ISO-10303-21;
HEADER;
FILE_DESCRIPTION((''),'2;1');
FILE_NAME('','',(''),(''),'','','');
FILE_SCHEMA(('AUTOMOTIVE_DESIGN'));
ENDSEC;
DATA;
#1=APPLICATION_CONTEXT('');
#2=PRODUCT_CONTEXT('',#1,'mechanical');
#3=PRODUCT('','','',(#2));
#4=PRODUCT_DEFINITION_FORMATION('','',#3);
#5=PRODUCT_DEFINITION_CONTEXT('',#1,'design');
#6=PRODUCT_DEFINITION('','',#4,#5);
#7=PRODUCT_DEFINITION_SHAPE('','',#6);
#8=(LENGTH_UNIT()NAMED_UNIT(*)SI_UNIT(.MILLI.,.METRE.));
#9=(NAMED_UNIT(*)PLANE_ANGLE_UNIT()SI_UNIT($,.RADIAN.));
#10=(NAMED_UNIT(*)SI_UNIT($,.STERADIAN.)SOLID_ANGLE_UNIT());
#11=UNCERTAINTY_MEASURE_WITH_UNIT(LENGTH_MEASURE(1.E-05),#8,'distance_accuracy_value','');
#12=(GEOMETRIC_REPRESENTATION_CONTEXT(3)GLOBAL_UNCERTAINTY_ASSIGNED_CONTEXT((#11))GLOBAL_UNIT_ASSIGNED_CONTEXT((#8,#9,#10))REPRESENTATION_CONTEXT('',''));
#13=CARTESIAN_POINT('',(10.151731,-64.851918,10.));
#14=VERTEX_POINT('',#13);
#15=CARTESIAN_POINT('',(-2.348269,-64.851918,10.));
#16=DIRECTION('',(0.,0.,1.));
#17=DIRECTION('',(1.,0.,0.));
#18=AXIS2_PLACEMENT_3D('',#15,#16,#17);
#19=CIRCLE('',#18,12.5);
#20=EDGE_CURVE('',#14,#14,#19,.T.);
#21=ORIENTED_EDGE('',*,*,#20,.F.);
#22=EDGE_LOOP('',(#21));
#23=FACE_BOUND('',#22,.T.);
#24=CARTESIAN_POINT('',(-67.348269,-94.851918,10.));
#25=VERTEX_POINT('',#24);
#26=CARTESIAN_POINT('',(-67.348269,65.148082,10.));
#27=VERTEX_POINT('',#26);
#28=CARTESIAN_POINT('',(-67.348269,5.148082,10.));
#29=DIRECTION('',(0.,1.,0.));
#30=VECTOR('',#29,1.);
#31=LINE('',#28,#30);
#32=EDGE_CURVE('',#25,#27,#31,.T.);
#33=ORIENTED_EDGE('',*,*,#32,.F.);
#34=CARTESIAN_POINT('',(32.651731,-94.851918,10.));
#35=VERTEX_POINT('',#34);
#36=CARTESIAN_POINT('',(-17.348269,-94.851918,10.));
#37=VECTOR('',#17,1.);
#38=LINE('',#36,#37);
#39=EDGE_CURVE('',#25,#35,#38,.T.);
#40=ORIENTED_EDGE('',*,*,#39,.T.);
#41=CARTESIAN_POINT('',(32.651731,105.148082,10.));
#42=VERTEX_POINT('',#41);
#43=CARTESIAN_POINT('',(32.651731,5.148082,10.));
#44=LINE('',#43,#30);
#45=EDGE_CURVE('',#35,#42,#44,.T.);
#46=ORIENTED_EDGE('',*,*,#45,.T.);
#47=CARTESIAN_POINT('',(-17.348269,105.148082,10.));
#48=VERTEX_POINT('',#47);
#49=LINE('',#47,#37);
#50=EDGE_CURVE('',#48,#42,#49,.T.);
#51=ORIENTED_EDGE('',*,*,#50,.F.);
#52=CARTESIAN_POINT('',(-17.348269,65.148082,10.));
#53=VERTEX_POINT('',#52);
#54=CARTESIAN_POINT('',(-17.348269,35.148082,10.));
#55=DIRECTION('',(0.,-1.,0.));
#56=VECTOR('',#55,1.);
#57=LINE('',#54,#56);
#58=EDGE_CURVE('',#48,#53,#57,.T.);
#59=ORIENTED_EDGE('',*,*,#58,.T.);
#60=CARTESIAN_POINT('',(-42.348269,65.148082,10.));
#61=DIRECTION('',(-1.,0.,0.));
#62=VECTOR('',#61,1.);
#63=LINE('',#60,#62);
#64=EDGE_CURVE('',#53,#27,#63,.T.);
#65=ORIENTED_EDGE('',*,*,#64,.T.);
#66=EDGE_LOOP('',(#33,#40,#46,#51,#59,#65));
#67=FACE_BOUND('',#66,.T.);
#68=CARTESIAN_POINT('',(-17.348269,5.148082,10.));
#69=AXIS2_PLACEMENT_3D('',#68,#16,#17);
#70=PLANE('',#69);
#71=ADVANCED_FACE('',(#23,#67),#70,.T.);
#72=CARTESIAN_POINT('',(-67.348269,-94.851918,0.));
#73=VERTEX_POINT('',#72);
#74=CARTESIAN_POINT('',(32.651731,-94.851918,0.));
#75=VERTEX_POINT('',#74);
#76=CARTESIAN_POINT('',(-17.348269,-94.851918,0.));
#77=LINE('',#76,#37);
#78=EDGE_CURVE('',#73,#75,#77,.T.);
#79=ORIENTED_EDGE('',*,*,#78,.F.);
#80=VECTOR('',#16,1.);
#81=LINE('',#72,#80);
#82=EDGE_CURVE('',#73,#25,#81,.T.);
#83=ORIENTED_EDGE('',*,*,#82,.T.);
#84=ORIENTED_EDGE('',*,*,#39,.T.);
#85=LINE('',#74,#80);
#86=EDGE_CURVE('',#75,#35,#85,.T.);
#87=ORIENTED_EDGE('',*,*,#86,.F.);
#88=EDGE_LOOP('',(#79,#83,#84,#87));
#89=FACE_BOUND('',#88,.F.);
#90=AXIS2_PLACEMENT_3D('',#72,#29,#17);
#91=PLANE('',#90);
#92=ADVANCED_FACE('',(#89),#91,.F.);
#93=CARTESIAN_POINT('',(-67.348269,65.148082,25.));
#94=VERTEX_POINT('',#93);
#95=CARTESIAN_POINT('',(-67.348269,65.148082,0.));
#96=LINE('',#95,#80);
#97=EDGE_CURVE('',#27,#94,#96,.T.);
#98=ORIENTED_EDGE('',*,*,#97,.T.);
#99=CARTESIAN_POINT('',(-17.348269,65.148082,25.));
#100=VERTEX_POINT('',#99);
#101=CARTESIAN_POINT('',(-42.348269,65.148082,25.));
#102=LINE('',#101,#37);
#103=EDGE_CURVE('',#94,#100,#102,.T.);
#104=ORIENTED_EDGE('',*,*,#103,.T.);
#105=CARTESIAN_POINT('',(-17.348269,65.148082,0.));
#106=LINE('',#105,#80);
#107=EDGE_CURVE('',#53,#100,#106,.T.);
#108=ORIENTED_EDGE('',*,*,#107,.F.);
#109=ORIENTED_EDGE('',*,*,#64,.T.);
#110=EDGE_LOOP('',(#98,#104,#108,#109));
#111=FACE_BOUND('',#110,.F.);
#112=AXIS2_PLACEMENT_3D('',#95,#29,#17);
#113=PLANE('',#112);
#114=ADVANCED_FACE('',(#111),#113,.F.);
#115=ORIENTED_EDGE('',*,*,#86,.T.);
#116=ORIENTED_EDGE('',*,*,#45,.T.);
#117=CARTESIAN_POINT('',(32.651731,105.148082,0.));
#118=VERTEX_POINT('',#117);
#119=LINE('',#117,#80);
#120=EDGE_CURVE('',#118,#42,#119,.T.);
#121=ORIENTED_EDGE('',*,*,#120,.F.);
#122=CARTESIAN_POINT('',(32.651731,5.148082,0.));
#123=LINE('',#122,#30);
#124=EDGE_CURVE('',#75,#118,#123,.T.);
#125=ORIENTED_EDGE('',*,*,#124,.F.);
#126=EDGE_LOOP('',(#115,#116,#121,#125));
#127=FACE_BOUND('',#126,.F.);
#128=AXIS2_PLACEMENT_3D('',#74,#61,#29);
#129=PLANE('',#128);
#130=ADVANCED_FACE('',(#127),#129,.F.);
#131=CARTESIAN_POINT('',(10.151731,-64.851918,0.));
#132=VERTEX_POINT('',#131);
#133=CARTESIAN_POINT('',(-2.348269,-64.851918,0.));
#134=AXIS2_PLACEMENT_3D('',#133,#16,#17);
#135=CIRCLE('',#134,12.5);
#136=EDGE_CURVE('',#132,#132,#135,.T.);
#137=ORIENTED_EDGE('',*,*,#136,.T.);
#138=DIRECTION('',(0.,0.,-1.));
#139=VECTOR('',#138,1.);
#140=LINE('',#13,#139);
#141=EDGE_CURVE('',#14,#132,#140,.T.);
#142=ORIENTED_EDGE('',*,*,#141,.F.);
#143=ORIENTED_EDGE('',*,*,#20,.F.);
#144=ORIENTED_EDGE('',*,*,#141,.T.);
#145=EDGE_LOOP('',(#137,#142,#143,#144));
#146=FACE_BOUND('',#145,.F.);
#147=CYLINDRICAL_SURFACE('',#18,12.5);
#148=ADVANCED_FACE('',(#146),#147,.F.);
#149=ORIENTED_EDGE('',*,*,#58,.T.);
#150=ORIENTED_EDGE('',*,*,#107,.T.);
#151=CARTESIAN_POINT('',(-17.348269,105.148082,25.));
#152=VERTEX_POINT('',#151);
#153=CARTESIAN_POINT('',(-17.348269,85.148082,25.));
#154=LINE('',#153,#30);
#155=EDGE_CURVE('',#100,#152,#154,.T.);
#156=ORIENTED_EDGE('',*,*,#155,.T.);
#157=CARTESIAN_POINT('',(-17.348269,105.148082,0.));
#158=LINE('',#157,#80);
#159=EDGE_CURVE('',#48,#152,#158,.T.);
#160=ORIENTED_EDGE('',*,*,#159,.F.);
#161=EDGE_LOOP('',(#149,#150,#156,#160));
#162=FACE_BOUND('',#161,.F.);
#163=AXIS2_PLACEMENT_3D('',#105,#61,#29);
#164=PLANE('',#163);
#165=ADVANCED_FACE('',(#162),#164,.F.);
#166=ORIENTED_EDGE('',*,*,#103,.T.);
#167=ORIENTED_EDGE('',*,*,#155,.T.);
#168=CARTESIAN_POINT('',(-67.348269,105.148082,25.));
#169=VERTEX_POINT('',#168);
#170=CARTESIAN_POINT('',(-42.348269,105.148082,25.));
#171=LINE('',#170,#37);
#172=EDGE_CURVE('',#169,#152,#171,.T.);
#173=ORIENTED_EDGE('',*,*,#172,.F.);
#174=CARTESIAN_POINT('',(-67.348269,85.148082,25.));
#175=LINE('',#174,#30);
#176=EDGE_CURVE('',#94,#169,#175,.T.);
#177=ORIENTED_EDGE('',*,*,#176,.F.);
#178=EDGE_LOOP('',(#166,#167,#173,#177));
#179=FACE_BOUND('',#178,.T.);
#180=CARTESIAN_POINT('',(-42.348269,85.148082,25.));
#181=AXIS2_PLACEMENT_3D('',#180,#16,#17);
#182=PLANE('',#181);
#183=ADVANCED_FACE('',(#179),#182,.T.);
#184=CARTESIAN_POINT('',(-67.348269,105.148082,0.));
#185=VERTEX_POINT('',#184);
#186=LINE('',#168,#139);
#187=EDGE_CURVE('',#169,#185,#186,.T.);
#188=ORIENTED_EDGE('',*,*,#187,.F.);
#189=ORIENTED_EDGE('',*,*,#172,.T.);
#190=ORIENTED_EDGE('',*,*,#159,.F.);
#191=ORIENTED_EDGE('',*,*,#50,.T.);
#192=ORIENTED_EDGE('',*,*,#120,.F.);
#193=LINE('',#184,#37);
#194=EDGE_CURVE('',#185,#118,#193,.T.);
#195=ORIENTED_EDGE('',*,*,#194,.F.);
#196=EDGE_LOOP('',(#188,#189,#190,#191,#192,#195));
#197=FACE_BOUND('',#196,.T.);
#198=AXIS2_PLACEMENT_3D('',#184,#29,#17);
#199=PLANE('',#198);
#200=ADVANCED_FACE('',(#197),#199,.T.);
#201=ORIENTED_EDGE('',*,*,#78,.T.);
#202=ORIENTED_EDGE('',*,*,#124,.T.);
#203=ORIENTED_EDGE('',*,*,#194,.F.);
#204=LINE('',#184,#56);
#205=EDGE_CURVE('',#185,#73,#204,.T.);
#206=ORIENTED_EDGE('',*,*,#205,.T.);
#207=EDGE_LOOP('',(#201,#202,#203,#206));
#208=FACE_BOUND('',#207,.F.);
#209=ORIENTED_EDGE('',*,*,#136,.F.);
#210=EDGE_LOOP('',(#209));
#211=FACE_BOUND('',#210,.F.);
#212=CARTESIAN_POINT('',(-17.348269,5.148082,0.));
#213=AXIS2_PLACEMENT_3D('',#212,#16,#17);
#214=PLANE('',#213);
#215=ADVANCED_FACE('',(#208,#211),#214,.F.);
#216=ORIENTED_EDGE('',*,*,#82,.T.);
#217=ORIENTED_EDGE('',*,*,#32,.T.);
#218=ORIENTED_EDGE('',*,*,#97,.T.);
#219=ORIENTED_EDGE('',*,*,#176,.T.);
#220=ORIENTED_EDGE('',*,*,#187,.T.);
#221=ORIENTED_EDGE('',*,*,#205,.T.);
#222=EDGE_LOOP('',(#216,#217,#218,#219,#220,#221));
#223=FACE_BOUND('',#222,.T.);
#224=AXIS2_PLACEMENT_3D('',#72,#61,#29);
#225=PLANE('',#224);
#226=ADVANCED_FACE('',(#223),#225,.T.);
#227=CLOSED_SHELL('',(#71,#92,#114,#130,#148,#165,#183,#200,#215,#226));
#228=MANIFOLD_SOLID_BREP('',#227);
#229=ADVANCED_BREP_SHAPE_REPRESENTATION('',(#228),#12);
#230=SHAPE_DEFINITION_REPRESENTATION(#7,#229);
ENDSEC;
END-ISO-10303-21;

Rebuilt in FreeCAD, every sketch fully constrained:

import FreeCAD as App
import Part
import Sketcher

V = App.Vector


def add_polygon(sketch, points):
    """Adds a closed chain of lines whose ends are joined by coincident constraints."""
    first, n = sketch.GeometryCount, len(points)
    for a, b in zip(points, points[1:] + points[:1]):
        sketch.addGeometry(Part.LineSegment(App.Vector(*a, 0), App.Vector(*b, 0)), False)
    for i in range(n):
        sketch.addConstraint(Sketcher.Constraint("Coincident", first + i, 2, first + (i + 1) % n, 1))

doc = App.newDocument("Part")
params = doc.addObject("Spreadsheet::Sheet", "Params")
for row, (alias, value) in enumerate([
    ("sketch1_width", "100 mm"),
    ("sketch1_height", "200 mm"),
    ("pad1_length", "10 mm"),
    ("sketch2_width", "50 mm"),
    ("sketch2_height", "40 mm"),
    ("pad2_length", "25 mm"),
    ("sketch3_diameter", "25 mm"),
], start=1):
    params.set(f"A{row}", alias)
    params.set(f"B{row}", "=" + value)
    params.setAlias(f"B{row}", alias)

body = doc.addObject("PartDesign::Body", "Body")

sketch1 = body.newObject("Sketcher::SketchObject", "Sketch")
sketch1.AttachmentSupport = (doc.getObject("XY_Plane"), [""])
sketch1.MapMode = "FlatFace"
add_polygon(sketch1, [(-67, 105), (-67, -95), (33, -95), (33, 105)])
sketch1.addConstraint([
    Sketcher.Constraint("Vertical", 0),
    Sketcher.Constraint("Horizontal", 1),
    Sketcher.Constraint("Vertical", 2),
    Sketcher.Constraint("Horizontal", 3),
    Sketcher.Constraint("DistanceX", 1, 1, 1, 2, 100.0),
    Sketcher.Constraint("DistanceY", 0, 2, 0, 1, 200.0),
    Sketcher.Constraint("DistanceX", 0, 2, -1, 1, 67.348269),
    Sketcher.Constraint("DistanceY", 0, 2, -1, 1, 94.851918),
])
sketch1.setExpression("Constraints[8]", "Params.sketch1_width")
sketch1.setExpression("Constraints[9]", "Params.sketch1_height")
pad1 = body.newObject("PartDesign::Pad", "Pad")
pad1.Profile = sketch1
pad1.setExpression("Length", "Params.pad1_length")

sketch2 = body.newObject("Sketcher::SketchObject", "Sketch001")
sketch2.AttachmentSupport = (doc.getObject("XY_Plane"), [""])
sketch2.MapMode = "FlatFace"
add_polygon(sketch2, [(-67, 105), (-67, 65), (-17, 65), (-17, 105)])
sketch2.addConstraint([
    Sketcher.Constraint("Vertical", 0),
    Sketcher.Constraint("Horizontal", 1),
    Sketcher.Constraint("Vertical", 2),
    Sketcher.Constraint("Horizontal", 3),
    Sketcher.Constraint("DistanceX", 1, 1, 1, 2, 50.0),
    Sketcher.Constraint("DistanceY", 0, 2, 0, 1, 40.0),
    Sketcher.Constraint("DistanceX", 0, 2, -1, 1, 67.348269),
    Sketcher.Constraint("DistanceY", -1, 1, 0, 2, 65.148082),
])
sketch2.setExpression("Constraints[8]", "Params.sketch2_width")
sketch2.setExpression("Constraints[9]", "Params.sketch2_height")
pad2 = body.newObject("PartDesign::Pad", "Pad001")
pad2.Profile = sketch2
pad2.setExpression("Length", "Params.pad2_length")

sketch3 = body.newObject("Sketcher::SketchObject", "Sketch002")
sketch3.AttachmentSupport = (doc.getObject("XY_Plane"), [""])
sketch3.MapMode = "FlatFace"
sketch3.AttachmentOffset = App.Placement(V(0, 0, 10), App.Rotation())
sketch3.addGeometry(Part.Circle(V(-2, -65, 0), V(0, 0, 1), 12), False)
sketch3.addConstraint([
    Sketcher.Constraint("Diameter", 0, 25.0),
    Sketcher.Constraint("DistanceX", 0, 3, -1, 1, 2.348269),
    Sketcher.Constraint("DistanceY", 0, 3, -1, 1, 64.851918),
])
sketch3.setExpression("Constraints[0]", "Params.sketch3_diameter")
pocket1 = body.newObject("PartDesign::Pocket", "Pocket")
pocket1.Profile = sketch3
pocket1.Type = "ThroughAll"

doc.recompute()
